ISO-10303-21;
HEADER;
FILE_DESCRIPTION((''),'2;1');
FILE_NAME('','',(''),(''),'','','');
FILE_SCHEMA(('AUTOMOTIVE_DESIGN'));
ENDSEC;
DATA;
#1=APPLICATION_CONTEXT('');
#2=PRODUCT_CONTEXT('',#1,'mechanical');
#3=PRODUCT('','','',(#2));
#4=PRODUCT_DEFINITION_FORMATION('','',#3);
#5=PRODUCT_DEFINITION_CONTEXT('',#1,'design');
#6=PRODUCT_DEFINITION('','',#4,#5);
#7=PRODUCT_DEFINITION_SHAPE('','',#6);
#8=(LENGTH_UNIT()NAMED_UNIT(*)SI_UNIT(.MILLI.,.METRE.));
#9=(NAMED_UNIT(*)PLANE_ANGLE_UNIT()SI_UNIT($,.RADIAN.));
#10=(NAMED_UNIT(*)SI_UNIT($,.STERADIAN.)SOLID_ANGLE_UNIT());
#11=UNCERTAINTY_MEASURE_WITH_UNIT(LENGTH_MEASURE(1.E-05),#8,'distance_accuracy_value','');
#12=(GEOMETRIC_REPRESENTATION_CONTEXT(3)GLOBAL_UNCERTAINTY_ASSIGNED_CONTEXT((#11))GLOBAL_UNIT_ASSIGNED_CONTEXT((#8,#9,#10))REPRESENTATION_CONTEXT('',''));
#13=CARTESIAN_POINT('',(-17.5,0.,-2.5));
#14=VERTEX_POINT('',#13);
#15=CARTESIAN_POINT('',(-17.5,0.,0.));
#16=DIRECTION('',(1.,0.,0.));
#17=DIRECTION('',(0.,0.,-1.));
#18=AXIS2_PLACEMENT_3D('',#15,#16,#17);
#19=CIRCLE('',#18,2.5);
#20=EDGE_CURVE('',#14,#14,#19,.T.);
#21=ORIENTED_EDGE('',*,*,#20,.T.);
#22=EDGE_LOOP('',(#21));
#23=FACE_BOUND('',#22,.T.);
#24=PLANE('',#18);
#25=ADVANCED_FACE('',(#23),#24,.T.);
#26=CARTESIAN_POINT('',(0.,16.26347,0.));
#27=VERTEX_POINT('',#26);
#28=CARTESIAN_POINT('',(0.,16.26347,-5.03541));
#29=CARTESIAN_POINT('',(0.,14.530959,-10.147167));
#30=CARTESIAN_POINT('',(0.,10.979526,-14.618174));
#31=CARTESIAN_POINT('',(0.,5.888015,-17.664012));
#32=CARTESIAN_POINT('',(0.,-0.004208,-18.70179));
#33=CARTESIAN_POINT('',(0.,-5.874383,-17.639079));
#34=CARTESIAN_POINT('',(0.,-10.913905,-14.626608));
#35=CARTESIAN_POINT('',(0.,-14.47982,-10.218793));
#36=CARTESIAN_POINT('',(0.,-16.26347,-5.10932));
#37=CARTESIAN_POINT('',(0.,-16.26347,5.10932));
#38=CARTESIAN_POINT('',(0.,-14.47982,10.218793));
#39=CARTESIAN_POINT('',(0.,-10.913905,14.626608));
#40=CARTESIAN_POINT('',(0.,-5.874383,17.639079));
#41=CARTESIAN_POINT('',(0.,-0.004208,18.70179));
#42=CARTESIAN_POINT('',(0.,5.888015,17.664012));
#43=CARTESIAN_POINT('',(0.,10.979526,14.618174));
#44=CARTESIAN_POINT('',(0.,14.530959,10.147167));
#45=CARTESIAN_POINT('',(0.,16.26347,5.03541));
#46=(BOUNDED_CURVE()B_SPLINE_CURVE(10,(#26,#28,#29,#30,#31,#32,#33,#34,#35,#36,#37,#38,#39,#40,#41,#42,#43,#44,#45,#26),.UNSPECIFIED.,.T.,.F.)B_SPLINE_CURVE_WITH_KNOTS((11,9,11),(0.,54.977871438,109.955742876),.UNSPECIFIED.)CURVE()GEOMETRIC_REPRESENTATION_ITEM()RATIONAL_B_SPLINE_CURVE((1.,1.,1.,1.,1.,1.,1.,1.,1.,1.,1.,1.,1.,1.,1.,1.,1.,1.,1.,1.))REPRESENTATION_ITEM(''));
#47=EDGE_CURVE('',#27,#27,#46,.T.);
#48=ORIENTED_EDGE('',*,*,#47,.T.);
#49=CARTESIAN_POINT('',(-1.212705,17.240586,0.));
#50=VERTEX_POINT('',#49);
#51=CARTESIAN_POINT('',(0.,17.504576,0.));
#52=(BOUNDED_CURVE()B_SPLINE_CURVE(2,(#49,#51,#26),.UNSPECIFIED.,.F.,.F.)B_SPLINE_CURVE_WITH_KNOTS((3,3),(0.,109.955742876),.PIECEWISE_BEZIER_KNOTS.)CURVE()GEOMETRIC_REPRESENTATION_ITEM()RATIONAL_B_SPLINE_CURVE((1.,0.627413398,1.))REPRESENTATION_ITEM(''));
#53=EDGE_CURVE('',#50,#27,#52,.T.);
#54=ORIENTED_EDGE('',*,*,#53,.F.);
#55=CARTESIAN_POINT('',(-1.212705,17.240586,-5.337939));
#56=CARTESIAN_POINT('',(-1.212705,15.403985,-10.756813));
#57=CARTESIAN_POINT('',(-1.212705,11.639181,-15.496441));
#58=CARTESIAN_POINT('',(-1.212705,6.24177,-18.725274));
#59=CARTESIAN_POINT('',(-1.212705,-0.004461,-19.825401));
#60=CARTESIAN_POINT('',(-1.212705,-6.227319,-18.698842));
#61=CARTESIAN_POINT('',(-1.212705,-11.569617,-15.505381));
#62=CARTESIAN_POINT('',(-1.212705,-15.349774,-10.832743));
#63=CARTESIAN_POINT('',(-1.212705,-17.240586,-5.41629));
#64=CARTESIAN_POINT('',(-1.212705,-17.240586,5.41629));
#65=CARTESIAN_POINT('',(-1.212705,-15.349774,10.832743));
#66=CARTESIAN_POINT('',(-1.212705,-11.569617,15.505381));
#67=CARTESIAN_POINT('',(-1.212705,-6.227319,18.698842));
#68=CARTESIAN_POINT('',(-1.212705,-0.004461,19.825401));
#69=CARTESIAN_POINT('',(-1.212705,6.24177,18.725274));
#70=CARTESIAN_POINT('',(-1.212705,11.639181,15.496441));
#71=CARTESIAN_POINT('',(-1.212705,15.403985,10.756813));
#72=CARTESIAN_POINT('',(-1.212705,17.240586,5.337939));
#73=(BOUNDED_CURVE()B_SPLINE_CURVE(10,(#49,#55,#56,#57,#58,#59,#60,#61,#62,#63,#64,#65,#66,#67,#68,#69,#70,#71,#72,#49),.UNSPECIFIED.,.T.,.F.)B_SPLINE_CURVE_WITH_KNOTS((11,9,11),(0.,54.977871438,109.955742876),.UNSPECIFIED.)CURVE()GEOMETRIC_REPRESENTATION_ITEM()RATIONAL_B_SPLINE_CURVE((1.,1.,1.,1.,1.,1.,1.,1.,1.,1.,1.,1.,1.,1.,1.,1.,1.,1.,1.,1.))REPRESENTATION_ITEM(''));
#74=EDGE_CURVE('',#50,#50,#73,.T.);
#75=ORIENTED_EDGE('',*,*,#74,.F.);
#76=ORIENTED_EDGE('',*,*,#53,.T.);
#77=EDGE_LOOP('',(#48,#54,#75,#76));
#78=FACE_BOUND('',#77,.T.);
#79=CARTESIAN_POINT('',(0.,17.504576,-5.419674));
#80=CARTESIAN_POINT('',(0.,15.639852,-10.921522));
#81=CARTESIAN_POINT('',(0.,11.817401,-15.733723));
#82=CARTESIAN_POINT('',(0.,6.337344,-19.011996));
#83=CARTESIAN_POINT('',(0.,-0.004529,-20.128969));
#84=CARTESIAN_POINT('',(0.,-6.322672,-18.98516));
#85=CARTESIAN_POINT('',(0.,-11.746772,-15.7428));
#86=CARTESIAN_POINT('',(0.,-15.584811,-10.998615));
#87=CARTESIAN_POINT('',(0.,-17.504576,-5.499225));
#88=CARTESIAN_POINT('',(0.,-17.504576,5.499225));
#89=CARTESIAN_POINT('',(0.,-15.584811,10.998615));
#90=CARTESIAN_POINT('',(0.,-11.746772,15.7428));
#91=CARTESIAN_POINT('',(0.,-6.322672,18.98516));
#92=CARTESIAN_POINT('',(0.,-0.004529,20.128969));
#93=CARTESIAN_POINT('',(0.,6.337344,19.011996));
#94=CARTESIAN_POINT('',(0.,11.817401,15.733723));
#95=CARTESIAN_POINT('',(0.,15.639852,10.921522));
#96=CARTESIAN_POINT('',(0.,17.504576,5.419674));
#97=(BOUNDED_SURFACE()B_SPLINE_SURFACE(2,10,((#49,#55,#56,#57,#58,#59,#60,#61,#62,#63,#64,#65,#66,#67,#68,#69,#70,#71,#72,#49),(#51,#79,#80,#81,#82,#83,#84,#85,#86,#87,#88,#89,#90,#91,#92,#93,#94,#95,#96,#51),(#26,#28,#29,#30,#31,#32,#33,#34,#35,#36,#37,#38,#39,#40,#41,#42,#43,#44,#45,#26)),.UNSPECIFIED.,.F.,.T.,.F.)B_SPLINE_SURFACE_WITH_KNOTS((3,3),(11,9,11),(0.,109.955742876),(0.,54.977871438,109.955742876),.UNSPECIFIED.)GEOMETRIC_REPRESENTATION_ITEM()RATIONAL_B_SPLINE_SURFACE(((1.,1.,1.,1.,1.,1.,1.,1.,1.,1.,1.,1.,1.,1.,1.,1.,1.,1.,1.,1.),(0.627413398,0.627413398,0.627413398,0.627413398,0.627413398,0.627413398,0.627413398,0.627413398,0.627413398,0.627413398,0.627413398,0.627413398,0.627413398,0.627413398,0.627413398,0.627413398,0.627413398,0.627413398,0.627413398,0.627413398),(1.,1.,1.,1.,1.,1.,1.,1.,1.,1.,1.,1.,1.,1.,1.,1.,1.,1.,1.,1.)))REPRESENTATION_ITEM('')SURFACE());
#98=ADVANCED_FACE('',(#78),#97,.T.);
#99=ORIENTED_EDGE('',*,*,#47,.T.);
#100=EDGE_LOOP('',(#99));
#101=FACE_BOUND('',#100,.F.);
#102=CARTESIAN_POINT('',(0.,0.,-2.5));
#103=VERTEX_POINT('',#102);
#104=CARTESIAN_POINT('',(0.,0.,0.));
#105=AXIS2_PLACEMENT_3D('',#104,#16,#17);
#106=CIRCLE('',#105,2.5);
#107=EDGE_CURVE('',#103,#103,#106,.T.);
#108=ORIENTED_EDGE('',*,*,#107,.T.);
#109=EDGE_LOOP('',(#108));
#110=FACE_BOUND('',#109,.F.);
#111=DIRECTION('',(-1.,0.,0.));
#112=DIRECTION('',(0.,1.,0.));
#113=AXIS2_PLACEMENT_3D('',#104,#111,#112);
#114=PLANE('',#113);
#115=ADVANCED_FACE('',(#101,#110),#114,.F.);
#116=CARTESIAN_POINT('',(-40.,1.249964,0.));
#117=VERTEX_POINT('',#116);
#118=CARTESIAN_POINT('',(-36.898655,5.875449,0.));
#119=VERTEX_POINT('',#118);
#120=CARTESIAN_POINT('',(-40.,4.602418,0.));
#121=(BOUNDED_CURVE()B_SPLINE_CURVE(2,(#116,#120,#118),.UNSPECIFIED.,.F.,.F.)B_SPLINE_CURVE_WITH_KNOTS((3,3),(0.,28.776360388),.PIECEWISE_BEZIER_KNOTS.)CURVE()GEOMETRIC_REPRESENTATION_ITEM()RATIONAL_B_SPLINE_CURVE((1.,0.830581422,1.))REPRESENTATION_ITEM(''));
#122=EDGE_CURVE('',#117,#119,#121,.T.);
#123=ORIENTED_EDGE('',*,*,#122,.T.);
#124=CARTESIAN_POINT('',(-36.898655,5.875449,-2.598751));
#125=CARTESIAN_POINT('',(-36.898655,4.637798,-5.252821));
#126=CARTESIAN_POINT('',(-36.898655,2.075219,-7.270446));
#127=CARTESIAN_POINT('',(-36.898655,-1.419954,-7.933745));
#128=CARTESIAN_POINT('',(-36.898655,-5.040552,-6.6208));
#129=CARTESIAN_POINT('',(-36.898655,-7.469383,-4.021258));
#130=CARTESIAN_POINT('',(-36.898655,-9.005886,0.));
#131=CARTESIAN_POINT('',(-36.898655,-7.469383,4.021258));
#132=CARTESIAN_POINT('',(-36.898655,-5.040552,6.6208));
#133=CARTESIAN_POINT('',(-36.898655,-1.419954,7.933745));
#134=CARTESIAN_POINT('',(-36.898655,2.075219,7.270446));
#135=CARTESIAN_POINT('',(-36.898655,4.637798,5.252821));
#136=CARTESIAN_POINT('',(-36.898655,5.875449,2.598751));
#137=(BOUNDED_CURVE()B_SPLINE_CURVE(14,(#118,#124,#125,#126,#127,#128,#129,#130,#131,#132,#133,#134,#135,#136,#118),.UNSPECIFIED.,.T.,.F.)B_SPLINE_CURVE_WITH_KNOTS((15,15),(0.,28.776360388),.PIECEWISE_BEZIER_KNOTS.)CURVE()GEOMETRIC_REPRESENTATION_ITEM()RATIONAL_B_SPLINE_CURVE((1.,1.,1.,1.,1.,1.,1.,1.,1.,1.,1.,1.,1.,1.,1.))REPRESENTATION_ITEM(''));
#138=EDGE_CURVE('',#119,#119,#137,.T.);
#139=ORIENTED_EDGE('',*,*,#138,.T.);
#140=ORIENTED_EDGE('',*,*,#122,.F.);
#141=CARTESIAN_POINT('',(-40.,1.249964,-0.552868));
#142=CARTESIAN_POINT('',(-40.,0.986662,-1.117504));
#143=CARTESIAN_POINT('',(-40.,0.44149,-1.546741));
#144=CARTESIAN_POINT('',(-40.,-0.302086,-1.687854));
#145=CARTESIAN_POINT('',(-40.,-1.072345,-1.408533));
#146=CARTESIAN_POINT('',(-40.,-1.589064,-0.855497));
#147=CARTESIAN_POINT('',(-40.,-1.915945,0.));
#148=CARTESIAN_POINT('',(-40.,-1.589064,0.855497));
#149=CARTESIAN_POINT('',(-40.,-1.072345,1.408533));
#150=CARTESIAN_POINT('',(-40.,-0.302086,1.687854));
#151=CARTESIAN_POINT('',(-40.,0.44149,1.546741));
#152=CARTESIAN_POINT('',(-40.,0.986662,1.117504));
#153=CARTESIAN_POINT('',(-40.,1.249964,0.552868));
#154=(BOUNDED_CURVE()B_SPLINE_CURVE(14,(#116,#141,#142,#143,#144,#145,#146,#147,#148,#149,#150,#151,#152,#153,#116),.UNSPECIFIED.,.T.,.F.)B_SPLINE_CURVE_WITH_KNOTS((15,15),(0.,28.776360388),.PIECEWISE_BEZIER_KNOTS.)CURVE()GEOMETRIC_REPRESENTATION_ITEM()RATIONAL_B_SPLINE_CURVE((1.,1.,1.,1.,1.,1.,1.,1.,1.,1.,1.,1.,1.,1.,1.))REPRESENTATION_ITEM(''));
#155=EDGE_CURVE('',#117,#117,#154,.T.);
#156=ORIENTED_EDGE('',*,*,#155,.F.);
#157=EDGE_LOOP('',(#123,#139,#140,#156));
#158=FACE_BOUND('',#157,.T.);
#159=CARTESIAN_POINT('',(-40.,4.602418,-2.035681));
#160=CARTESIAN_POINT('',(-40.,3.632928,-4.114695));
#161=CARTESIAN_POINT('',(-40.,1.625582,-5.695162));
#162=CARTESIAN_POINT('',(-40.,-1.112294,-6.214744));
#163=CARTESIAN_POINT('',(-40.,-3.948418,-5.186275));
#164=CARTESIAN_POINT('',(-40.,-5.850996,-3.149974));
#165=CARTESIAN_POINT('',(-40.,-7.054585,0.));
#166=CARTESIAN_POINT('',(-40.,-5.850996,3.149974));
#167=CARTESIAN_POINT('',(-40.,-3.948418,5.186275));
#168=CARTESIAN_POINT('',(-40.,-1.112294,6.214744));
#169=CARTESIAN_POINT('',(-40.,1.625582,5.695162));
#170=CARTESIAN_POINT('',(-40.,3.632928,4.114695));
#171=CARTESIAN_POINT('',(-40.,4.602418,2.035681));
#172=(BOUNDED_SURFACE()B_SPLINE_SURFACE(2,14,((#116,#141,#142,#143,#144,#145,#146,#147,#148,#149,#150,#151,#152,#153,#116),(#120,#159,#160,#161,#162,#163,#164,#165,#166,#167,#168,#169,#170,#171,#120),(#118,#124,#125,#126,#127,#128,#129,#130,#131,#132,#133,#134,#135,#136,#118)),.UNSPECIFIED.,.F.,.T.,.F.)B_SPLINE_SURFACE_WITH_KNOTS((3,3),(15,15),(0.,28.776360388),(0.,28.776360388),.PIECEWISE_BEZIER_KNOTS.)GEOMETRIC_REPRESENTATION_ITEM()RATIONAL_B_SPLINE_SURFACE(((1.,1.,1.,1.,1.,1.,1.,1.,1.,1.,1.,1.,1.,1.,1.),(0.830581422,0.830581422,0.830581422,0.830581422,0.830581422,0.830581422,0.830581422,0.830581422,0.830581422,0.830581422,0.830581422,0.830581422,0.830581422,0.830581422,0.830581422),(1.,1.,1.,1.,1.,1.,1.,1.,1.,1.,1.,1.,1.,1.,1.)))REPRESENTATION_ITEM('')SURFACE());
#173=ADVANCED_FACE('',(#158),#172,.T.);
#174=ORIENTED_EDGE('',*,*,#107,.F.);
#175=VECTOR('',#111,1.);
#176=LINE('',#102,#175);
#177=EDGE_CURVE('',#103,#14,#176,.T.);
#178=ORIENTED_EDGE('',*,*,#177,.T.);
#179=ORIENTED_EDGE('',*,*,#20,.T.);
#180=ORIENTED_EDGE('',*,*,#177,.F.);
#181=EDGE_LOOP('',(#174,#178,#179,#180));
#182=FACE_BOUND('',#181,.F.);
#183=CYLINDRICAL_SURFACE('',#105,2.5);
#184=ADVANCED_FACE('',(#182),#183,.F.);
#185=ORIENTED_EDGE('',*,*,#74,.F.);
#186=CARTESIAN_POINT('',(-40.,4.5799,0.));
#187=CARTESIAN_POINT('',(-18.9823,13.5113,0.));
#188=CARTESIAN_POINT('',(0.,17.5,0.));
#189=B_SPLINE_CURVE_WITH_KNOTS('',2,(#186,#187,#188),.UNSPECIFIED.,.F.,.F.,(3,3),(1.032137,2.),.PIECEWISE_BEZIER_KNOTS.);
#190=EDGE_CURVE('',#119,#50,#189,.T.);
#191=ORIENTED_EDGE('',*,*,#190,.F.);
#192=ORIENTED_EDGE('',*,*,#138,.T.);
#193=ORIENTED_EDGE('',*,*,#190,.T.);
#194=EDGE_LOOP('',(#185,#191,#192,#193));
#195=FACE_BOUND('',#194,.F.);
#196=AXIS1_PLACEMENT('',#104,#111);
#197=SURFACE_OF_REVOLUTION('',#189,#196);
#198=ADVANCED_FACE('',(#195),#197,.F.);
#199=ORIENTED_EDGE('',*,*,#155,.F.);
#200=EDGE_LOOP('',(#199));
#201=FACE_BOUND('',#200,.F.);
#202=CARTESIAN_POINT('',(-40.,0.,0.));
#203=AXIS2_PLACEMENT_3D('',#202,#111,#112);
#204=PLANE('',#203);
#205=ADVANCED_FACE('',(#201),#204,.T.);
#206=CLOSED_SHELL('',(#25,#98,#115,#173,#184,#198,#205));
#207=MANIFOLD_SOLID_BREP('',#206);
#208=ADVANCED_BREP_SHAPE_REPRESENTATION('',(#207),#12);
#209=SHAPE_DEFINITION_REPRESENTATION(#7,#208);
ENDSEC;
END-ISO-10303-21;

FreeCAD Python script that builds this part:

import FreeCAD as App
import Part
import Sketcher

V = App.Vector


def edges_at(feature, points):
    """Names of the edges that pass closest to the given points."""
    edges = feature.Shape.Edges
    near = lambda p: min(range(len(edges)), key=lambda i: edges[i].distToShape(Part.Vertex(*p))[0])
    return sorted({f"Edge{near(p) + 1}" for p in points})

doc = App.newDocument("Part")
body = doc.addObject("PartDesign::Body", "Body")

# Sketch on XY plane
sketch1 = body.newObject("Sketcher::SketchObject", "Sketch")
sketch1.AttachmentSupport = (doc.getObject("XY_Plane"), [""])
sketch1.MapMode = "FlatFace"
sketch1.addGeometry([
    Part.LineSegment(V(-40, 0, 0), V(0, 0, 0)),
    Part.LineSegment(V(0, 0, 0), V(0, 17.5, 0)),
    Part.BSplineCurve([V(-40, 4.5799, 0), V(-18.9823, 13.5113, 0), V(0, 17.5, 0)], [3, 3], [1.032137, 2], False, 2, [1, 1, 1], False),
    Part.LineSegment(V(-40, 4.5799, 0), V(-40, 0, 0)),
], False)
sketch1.addConstraint([
    Sketcher.Constraint("Block", 2),
    Sketcher.Constraint("Coincident", 0, 2, 1, 1),
    Sketcher.Constraint("Coincident", 1, 2, 2, 2),
    Sketcher.Constraint("Coincident", 2, 1, 3, 1),
    Sketcher.Constraint("Coincident", 3, 2, 0, 1),
    Sketcher.Constraint("Horizontal", 0),
    Sketcher.Constraint("Vertical", 1),
    Sketcher.Constraint("Vertical", 3),
    Sketcher.Constraint("PointOnObject", 3, 2, -1),
])
revolution = body.newObject("PartDesign::Revolution", "Revolution")
revolution.Profile = sketch1
revolution.ReferenceAxis = (sketch1, ["H_Axis"])
revolution.Angle = 360
doc.recompute()

fillet = body.newObject("PartDesign::Fillet", "Fillet")
fillet.Base = (revolution, edges_at(revolution, [(-40, -4.58, 0)]))
fillet.Radius = 5

# Sketch on YZ plane
sketch2 = body.newObject("Sketcher::SketchObject", "Sketch001")
sketch2.AttachmentSupport = (doc.getObject("YZ_Plane"), [""])
sketch2.MapMode = "FlatFace"
sketch2.addGeometry(Part.Circle(V(0, 0, 0), V(0, 0, 1), 2.5), False)
sketch2.addConstraint([
    Sketcher.Constraint("Coincident", 0, 3, -1, 1),
    Sketcher.Constraint("Diameter", 0, 5.0),
])
pocket1 = body.newObject("PartDesign::Pocket", "Pocket")
pocket1.Profile = sketch2
pocket1.Length = 17.5
doc.recompute()

fillet2 = body.newObject("PartDesign::Fillet", "Fillet001")
fillet2.Base = (pocket1, edges_at(pocket1, [(0, -17.5, 0)]))
fillet2.Radius = 1

doc.recompute()
